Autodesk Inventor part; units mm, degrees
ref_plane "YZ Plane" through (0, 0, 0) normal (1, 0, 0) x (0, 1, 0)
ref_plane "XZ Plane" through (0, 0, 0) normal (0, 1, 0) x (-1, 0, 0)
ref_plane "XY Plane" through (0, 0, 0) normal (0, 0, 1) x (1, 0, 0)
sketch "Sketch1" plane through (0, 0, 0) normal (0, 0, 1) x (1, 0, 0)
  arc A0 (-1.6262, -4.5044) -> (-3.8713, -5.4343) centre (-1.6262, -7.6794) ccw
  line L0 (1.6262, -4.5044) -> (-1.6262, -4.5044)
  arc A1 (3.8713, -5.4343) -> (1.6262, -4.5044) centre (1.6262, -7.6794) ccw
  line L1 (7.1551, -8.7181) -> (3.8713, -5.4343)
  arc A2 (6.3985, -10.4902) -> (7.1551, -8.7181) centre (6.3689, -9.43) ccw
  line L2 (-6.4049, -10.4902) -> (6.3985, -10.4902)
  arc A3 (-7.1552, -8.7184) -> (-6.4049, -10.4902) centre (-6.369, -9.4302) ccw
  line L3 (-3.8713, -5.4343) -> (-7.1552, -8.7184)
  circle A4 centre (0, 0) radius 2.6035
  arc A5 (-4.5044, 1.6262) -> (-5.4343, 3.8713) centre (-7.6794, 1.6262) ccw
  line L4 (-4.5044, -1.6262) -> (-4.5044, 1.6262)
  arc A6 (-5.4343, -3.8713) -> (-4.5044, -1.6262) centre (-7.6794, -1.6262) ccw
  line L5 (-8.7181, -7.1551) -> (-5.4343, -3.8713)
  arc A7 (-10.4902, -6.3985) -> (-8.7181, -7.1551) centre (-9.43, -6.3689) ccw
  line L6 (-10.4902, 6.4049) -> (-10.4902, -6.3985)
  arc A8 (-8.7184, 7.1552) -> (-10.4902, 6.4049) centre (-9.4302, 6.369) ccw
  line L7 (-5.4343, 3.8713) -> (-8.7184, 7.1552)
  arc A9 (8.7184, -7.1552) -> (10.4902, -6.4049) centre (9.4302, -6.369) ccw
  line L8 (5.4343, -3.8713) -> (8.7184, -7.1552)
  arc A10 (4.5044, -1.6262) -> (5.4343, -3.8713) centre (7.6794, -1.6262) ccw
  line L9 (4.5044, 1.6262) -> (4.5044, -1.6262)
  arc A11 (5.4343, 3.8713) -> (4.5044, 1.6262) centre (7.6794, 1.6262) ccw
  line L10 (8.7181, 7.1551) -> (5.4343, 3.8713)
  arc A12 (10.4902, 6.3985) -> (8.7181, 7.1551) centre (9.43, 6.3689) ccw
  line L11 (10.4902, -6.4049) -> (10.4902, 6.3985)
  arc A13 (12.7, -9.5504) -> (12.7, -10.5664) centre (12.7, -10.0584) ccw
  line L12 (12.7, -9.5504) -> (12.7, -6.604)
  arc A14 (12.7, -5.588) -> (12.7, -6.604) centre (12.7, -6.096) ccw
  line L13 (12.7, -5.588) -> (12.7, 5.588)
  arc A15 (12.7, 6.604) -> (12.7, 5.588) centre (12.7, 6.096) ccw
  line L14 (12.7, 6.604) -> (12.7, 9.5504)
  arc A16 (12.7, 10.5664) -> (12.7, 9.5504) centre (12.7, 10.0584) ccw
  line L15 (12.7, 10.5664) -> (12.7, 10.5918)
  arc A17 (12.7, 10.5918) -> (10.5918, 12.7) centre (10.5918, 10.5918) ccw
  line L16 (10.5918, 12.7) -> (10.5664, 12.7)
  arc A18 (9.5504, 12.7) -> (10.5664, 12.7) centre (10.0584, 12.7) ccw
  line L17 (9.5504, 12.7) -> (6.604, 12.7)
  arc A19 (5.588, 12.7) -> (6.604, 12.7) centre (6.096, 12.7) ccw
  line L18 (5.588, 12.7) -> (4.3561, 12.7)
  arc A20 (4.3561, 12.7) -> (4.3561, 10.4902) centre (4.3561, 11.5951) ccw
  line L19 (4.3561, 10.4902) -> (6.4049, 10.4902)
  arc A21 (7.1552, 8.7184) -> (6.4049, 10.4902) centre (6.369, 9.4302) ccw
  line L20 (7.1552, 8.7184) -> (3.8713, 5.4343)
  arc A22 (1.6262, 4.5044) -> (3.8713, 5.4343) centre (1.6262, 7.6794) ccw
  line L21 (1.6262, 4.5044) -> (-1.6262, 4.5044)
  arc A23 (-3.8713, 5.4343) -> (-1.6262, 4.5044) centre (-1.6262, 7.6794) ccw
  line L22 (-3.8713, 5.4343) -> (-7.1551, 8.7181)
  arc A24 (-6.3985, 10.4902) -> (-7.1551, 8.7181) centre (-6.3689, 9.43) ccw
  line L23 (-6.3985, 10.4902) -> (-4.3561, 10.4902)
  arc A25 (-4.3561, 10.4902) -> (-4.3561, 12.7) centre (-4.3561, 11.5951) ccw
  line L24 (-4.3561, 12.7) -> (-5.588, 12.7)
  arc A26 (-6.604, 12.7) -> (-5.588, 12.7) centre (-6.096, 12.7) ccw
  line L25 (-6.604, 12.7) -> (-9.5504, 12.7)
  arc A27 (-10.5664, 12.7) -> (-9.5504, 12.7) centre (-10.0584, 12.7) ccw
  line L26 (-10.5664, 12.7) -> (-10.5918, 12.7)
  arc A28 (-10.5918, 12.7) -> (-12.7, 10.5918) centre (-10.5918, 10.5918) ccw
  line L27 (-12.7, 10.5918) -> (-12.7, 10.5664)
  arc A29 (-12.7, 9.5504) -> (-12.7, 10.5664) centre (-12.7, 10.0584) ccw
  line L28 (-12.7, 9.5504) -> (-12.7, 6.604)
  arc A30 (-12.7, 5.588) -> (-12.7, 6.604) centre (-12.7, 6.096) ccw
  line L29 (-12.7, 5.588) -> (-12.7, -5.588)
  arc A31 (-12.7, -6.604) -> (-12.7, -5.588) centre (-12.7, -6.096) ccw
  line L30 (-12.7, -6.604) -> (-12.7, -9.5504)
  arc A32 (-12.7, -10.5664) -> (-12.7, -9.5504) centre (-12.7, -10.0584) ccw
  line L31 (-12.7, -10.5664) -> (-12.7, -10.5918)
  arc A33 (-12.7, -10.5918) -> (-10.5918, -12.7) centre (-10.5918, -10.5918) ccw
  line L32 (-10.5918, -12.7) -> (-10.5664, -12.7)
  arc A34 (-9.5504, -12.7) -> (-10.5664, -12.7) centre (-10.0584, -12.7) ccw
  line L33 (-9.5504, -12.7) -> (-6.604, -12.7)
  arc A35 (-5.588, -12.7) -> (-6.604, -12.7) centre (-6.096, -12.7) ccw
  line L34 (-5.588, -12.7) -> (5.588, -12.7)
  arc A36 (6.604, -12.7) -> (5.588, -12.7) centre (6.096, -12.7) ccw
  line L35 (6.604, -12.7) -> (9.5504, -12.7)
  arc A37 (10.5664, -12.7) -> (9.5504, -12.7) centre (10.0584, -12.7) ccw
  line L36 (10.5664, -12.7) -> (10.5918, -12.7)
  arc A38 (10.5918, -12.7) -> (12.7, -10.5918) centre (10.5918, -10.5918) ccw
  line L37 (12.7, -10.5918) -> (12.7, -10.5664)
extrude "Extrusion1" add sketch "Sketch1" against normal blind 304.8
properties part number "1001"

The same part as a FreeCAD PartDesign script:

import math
import FreeCAD as App
import Part
import Sketcher
from FreeCAD import Vector
Q = App.Units.Quantity

doc = App.newDocument("Part")
params = doc.addObject("Spreadsheet::Sheet", "Params")
for row, (alias, value) in enumerate([
    ("sketch1_radius", "0.02 in"),
    ("sketch1_radius2", "0.02 in"),
    ("sketch1_radius3", "0.02 in"),
    ("sketch1_radius4", "0.02 in"),
    ("sketch1_radius5", "0.02 in"),
    ("pad1_length", "12 in"),
], start=1):
    params.set(f"A{row}", alias)
    params.set(f"B{row}", "=" + value)
    params.setAlias(f"B{row}", alias)

body = doc.addObject("PartDesign::Body", "Body")

# Sketch on XY plane
sketch1 = doc.addObject("Sketcher::SketchObject", "Sketch")
body.addObject(sketch1)
sketch1.AttachmentSupport = (doc.XY_Plane, [""])
sketch1.MapMode = "FlatFace"
sketch1.addGeometry([
    Part.ArcOfCircle(Part.Circle(Vector(12.7, -10.0584, 0), Vector(0, 0, 1), 0.508), math.radians(90), math.radians(270)),  # 0
    Part.LineSegment(Vector(12.7, -9.5504, 0), Vector(12.7, -6.604, 0)),  # 1
    Part.ArcOfCircle(Part.Circle(Vector(12.7, -6.096, 0), Vector(0, 0, 1), 0.508), math.radians(90), math.radians(270)),  # 2
    Part.LineSegment(Vector(12.7, -5.588, 0), Vector(12.7, 5.588, 0)),  # 3
    Part.ArcOfCircle(Part.Circle(Vector(12.7, 6.096, 0), Vector(0, 0, 1), 0.508), math.radians(90), math.radians(270)),  # 4
    Part.LineSegment(Vector(12.7, 6.604, 0), Vector(12.7, 9.5504, 0)),  # 5
    Part.ArcOfCircle(Part.Circle(Vector(12.7, 10.0584, 0), Vector(0, 0, 1), 0.508), math.radians(90), math.radians(270)),  # 6
    Part.LineSegment(Vector(12.7, 10.5664, 0), Vector(12.7, 10.5918, 0)),  # 7
    Part.ArcOfCircle(Part.Circle(Vector(10.5918, 10.5918, 0), Vector(0, 0, 1), 2.1082), math.radians(0), math.radians(90)),  # 8
    Part.LineSegment(Vector(10.5918, 12.7, 0), Vector(10.5664, 12.7, 0)),  # 9
    Part.ArcOfCircle(Part.Circle(Vector(10.0584, 12.7, 0), Vector(0, 0, 1), 0.508), math.radians(180), math.radians(360)),  # 10
    Part.LineSegment(Vector(9.5504, 12.7, 0), Vector(6.604, 12.7, 0)),  # 11
    Part.ArcOfCircle(Part.Circle(Vector(6.096, 12.7, 0), Vector(0, 0, 1), 0.508), math.radians(180), math.radians(360)),  # 12
    Part.LineSegment(Vector(5.588, 12.7, 0), Vector(4.3561, 12.7, 0)),  # 13
    Part.ArcOfCircle(Part.Circle(Vector(4.3561, 11.5951, 0), Vector(0, 0, 1), 1.1049), math.radians(90), math.radians(270)),  # 14
    Part.LineSegment(Vector(4.3561, 10.4902, 0), Vector(6.4049, 10.4902, 0)),  # 15
    Part.ArcOfCircle(Part.Circle(Vector(6.369, 9.4302, 0), Vector(0, 0, 1), 1.060552), math.radians(-42.156671), math.radians(88.060252)),  # 16
    Part.LineSegment(Vector(7.1552, 8.7184, 0), Vector(3.8713, 5.4343, 0)),  # 17
    Part.ArcOfCircle(Part.Circle(Vector(1.6262, 7.6794, 0), Vector(0, 0, 1), 3.175), math.radians(-90), math.radians(-45)),  # 18
    Part.LineSegment(Vector(1.6262, 4.5044, 0), Vector(-1.6262, 4.5044, 0)),  # 19
    Part.ArcOfCircle(Part.Circle(Vector(-1.6262, 7.6794, 0), Vector(0, 0, 1), 3.175051), math.radians(-135), math.radians(-90)),  # 20
    Part.LineSegment(Vector(-3.8713, 5.4343, 0), Vector(-7.1551, 8.7181, 0)),  # 21
    Part.ArcOfCircle(Part.Circle(Vector(-6.3689, 9.43, 0), Vector(0, 0, 1), 1.060613), math.radians(91.59924), math.radians(222.160676)),  # 22
    Part.LineSegment(Vector(-6.3985, 10.4902, 0), Vector(-4.3561, 10.4902, 0)),  # 23
    Part.ArcOfCircle(Part.Circle(Vector(-4.3561, 11.5951, 0), Vector(0, 0, 1), 1.1049), math.radians(-90), math.radians(90)),  # 24
    Part.LineSegment(Vector(-4.3561, 12.7, 0), Vector(-5.588, 12.7, 0)),  # 25
    Part.ArcOfCircle(Part.Circle(Vector(-6.096, 12.7, 0), Vector(0, 0, 1), 0.508), math.radians(180), math.radians(360)),  # 26
    Part.LineSegment(Vector(-6.604, 12.7, 0), Vector(-9.5504, 12.7, 0)),  # 27
    Part.ArcOfCircle(Part.Circle(Vector(-10.0584, 12.7, 0), Vector(0, 0, 1), 0.508), math.radians(180), math.radians(360)),  # 28
    Part.LineSegment(Vector(-10.5664, 12.7, 0), Vector(-10.5918, 12.7, 0)),  # 29
    Part.ArcOfCircle(Part.Circle(Vector(-10.5918, 10.5918, 0), Vector(0, 0, 1), 2.1082), math.radians(90), math.radians(180)),  # 30
    Part.LineSegment(Vector(-12.7, 10.5918, 0), Vector(-12.7, 10.5664, 0)),  # 31
    Part.ArcOfCircle(Part.Circle(Vector(-12.7, 10.0584, 0), Vector(0, 0, 1), 0.508), math.radians(-90), math.radians(90)),  # 32
    Part.LineSegment(Vector(-12.7, 9.5504, 0), Vector(-12.7, 6.604, 0)),  # 33
    Part.ArcOfCircle(Part.Circle(Vector(-12.7, 6.096, 0), Vector(0, 0, 1), 0.508), math.radians(-90), math.radians(90)),  # 34
    Part.LineSegment(Vector(-12.7, 5.588, 0), Vector(-12.7, -5.588, 0)),  # 35
    Part.ArcOfCircle(Part.Circle(Vector(-12.7, -6.096, 0), Vector(0, 0, 1), 0.508), math.radians(-90), math.radians(90)),  # 36
    Part.LineSegment(Vector(-12.7, -6.604, 0), Vector(-12.7, -9.5504, 0)),  # 37
    Part.ArcOfCircle(Part.Circle(Vector(-12.7, -10.0584, 0), Vector(0, 0, 1), 0.508), math.radians(-90), math.radians(90)),  # 38
    Part.LineSegment(Vector(-12.7, -10.5664, 0), Vector(-12.7, -10.5918, 0)),  # 39
    Part.ArcOfCircle(Part.Circle(Vector(-10.5918, -10.5918, 0), Vector(0, 0, 1), 2.1082), math.radians(180), math.radians(270)),  # 40
    Part.LineSegment(Vector(-10.5918, -12.7, 0), Vector(-10.5664, -12.7, 0)),  # 41
    Part.ArcOfCircle(Part.Circle(Vector(-10.0584, -12.7, 0), Vector(0, 0, 1), 0.508), math.radians(0), math.radians(180)),  # 42
    Part.LineSegment(Vector(-9.5504, -12.7, 0), Vector(-6.604, -12.7, 0)),  # 43
    Part.ArcOfCircle(Part.Circle(Vector(-6.096, -12.7, 0), Vector(0, 0, 1), 0.508), math.radians(0), math.radians(180)),  # 44
    Part.LineSegment(Vector(-5.588, -12.7, 0), Vector(5.588, -12.7, 0)),  # 45
    Part.ArcOfCircle(Part.Circle(Vector(6.096, -12.7, 0), Vector(0, 0, 1), 0.508), math.radians(0), math.radians(180)),  # 46
    Part.LineSegment(Vector(6.604, -12.7, 0), Vector(9.5504, -12.7, 0)),  # 47
    Part.ArcOfCircle(Part.Circle(Vector(10.0584, -12.7, 0), Vector(0, 0, 1), 0.508), math.radians(0), math.radians(180)),  # 48
    Part.LineSegment(Vector(10.5664, -12.7, 0), Vector(10.5918, -12.7, 0)),  # 49
    Part.ArcOfCircle(Part.Circle(Vector(10.5918, -10.5918, 0), Vector(0, 0, 1), 2.1082), math.radians(-90), math.radians(0)),  # 50
    Part.LineSegment(Vector(12.7, -10.5918, 0), Vector(12.7, -10.5664, 0)),  # 51
    Part.ArcOfCircle(Part.Circle(Vector(-1.6262, -7.6794, 0), Vector(0, 0, 1), 3.175), math.radians(90), math.radians(135)),  # 52
    Part.LineSegment(Vector(-1.6262, -4.5044, 0), Vector(1.6262, -4.5044, 0)),  # 53
    Part.ArcOfCircle(Part.Circle(Vector(1.6262, -7.6794, 0), Vector(0, 0, 1), 3.175051), math.radians(45), math.radians(90)),  # 54
    Part.LineSegment(Vector(3.8713, -5.4343, 0), Vector(7.1551, -8.7181, 0)),  # 55
    Part.ArcOfCircle(Part.Circle(Vector(6.3689, -9.43, 0), Vector(0, 0, 1), 1.060613), math.radians(-88.40076), math.radians(42.160676)),  # 56
    Part.LineSegment(Vector(6.3985, -10.4902, 0), Vector(-6.4049, -10.4902, 0)),  # 57
    Part.ArcOfCircle(Part.Circle(Vector(-6.369, -9.4302, 0), Vector(0, 0, 1), 1.060552), math.radians(137.843329), math.radians(268.060252)),  # 58
    Part.LineSegment(Vector(-7.1552, -8.7184, 0), Vector(-3.8713, -5.4343, 0)),  # 59
    Part.Circle(Vector(0, 0, 0), Vector(0, 0, 1), 2.6035),  # 60
    Part.ArcOfCircle(Part.Circle(Vector(9.4302, -6.369, 0), Vector(0, 0, 1), 1.060552), math.radians(-132.156671), math.radians(-1.939748)),  # 61
    Part.LineSegment(Vector(8.7184, -7.1552, 0), Vector(5.4343, -3.8713, 0)),  # 62
    Part.ArcOfCircle(Part.Circle(Vector(7.6794, -1.6262, 0), Vector(0, 0, 1), 3.175), math.radians(180), math.radians(225)),  # 63
    Part.LineSegment(Vector(4.5044, -1.6262, 0), Vector(4.5044, 1.6262, 0)),  # 64
    Part.ArcOfCircle(Part.Circle(Vector(7.6794, 1.6262, 0), Vector(0, 0, 1), 3.175051), math.radians(135), math.radians(180)),  # 65
    Part.LineSegment(Vector(5.4343, 3.8713, 0), Vector(8.7181, 7.1551, 0)),  # 66
    Part.ArcOfCircle(Part.Circle(Vector(9.43, 6.3689, 0), Vector(0, 0, 1), 1.060613), math.radians(1.59924), math.radians(132.160676)),  # 67
    Part.LineSegment(Vector(10.4902, 6.3985, 0), Vector(10.4902, -6.4049, 0)),  # 68
    Part.ArcOfCircle(Part.Circle(Vector(-7.6794, 1.6262, 0), Vector(0, 0, 1), 3.175), math.radians(0), math.radians(45)),  # 69
    Part.LineSegment(Vector(-4.5044, 1.6262, 0), Vector(-4.5044, -1.6262, 0)),  # 70
    Part.ArcOfCircle(Part.Circle(Vector(-7.6794, -1.6262, 0), Vector(0, 0, 1), 3.175051), math.radians(-45), math.radians(0)),  # 71
    Part.LineSegment(Vector(-5.4343, -3.8713, 0), Vector(-8.7181, -7.1551, 0)),  # 72
    Part.ArcOfCircle(Part.Circle(Vector(-9.43, -6.3689, 0), Vector(0, 0, 1), 1.060613), math.radians(-178.40076), math.radians(-47.839324)),  # 73
    Part.LineSegment(Vector(-10.4902, -6.3985, 0), Vector(-10.4902, 6.4049, 0)),  # 74
    Part.ArcOfCircle(Part.Circle(Vector(-9.4302, 6.369, 0), Vector(0, 0, 1), 1.060552), math.radians(47.843329), math.radians(178.060252)),  # 75
    Part.LineSegment(Vector(-8.7184, 7.1552, 0), Vector(-5.4343, 3.8713, 0)),  # 76
], False)
sketch1.addConstraint([
    Sketcher.Constraint("Coincident", 0, 1, 1, 1),
    Sketcher.Constraint("Coincident", 1, 2, 2, 2),
    Sketcher.Constraint("Coincident", 2, 1, 3, 1),
    Sketcher.Constraint("Coincident", 3, 2, 4, 2),
    Sketcher.Constraint("Coincident", 4, 1, 5, 1),
    Sketcher.Constraint("Coincident", 5, 2, 6, 2),
    Sketcher.Constraint("Coincident", 6, 1, 7, 1),
    Sketcher.Constraint("Coincident", 7, 2, 8, 1),
    Sketcher.Constraint("Coincident", 8, 2, 9, 1),
    Sketcher.Constraint("Coincident", 9, 2, 10, 2),
    Sketcher.Constraint("Coincident", 10, 1, 11, 1),
    Sketcher.Constraint("Coincident", 11, 2, 12, 2),
    Sketcher.Constraint("Coincident", 12, 1, 13, 1),
    Sketcher.Constraint("Coincident", 13, 2, 14, 1),
    Sketcher.Constraint("Coincident", 14, 2, 15, 1),
    Sketcher.Constraint("Coincident", 15, 2, 16, 2),
    Sketcher.Constraint("Coincident", 16, 1, 17, 1),
    Sketcher.Constraint("Coincident", 17, 2, 18, 2),
    Sketcher.Constraint("Coincident", 18, 1, 19, 1),
    Sketcher.Constraint("Coincident", 19, 2, 20, 2),
    Sketcher.Constraint("Coincident", 20, 1, 21, 1),
    Sketcher.Constraint("Coincident", 21, 2, 22, 2),
    Sketcher.Constraint("Coincident", 22, 1, 23, 1),
    Sketcher.Constraint("Coincident", 23, 2, 24, 1),
    Sketcher.Constraint("Coincident", 24, 2, 25, 1),
    Sketcher.Constraint("Coincident", 25, 2, 26, 2),
    Sketcher.Constraint("Coincident", 26, 1, 27, 1),
    Sketcher.Constraint("Coincident", 27, 2, 28, 2),
    Sketcher.Constraint("Coincident", 28, 1, 29, 1),
    Sketcher.Constraint("Coincident", 29, 2, 30, 1),
    Sketcher.Constraint("Coincident", 30, 2, 31, 1),
    Sketcher.Constraint("Coincident", 31, 2, 32, 2),
    Sketcher.Constraint("Coincident", 32, 1, 33, 1),
    Sketcher.Constraint("Coincident", 33, 2, 34, 2),
    Sketcher.Constraint("Coincident", 34, 1, 35, 1),
    Sketcher.Constraint("Coincident", 35, 2, 36, 2),
    Sketcher.Constraint("Coincident", 36, 1, 37, 1),
    Sketcher.Constraint("Coincident", 37, 2, 38, 2),
    Sketcher.Constraint("Coincident", 38, 1, 39, 1),
    Sketcher.Constraint("Coincident", 39, 2, 40, 1),
    Sketcher.Constraint("Coincident", 40, 2, 41, 1),
    Sketcher.Constraint("Coincident", 41, 2, 42, 2),
    Sketcher.Constraint("Coincident", 42, 1, 43, 1),
    Sketcher.Constraint("Coincident", 43, 2, 44, 2),
    Sketcher.Constraint("Coincident", 44, 1, 45, 1),
    Sketcher.Constraint("Coincident", 45, 2, 46, 2),
    Sketcher.Constraint("Coincident", 46, 1, 47, 1),
    Sketcher.Constraint("Coincident", 47, 2, 48, 2),
    Sketcher.Constraint("Coincident", 48, 1, 49, 1),
    Sketcher.Constraint("Coincident", 49, 2, 50, 1),
    Sketcher.Constraint("Coincident", 50, 2, 51, 1),
    Sketcher.Constraint("Coincident", 51, 2, 0, 2),
    Sketcher.Constraint("Coincident", 52, 1, 53, 1),
    Sketcher.Constraint("Coincident", 53, 2, 54, 2),
    Sketcher.Constraint("Coincident", 54, 1, 55, 1),
    Sketcher.Constraint("Coincident", 55, 2, 56, 2),
    Sketcher.Constraint("Coincident", 56, 1, 57, 1),
    Sketcher.Constraint("Coincident", 57, 2, 58, 2),
    Sketcher.Constraint("Coincident", 58, 1, 59, 1),
    Sketcher.Constraint("Coincident", 59, 2, 52, 2),
    Sketcher.Constraint("Coincident", 61, 1, 62, 1),
    Sketcher.Constraint("Coincident", 62, 2, 63, 2),
    Sketcher.Constraint("Coincident", 63, 1, 64, 1),
    Sketcher.Constraint("Coincident", 64, 2, 65, 2),
    Sketcher.Constraint("Coincident", 65, 1, 66, 1),
    Sketcher.Constraint("Coincident", 66, 2, 67, 2),
    Sketcher.Constraint("Coincident", 67, 1, 68, 1),
    Sketcher.Constraint("Coincident", 68, 2, 61, 2),
    Sketcher.Constraint("Coincident", 69, 1, 70, 1),
    Sketcher.Constraint("Coincident", 70, 2, 71, 2),
    Sketcher.Constraint("Coincident", 71, 1, 72, 1),
    Sketcher.Constraint("Coincident", 72, 2, 73, 2),
    Sketcher.Constraint("Coincident", 73, 1, 74, 1),
    Sketcher.Constraint("Coincident", 74, 2, 75, 2),
    Sketcher.Constraint("Coincident", 75, 1, 76, 1),
    Sketcher.Constraint("Coincident", 76, 2, 69, 2),
    Sketcher.Constraint("Vertical", 1),
    Sketcher.Constraint("Vertical", 3),
    Sketcher.Constraint("Vertical", 5),
    Sketcher.Constraint("Vertical", 7),
    Sketcher.Constraint("Horizontal", 9),
    Sketcher.Constraint("Horizontal", 11),
    Sketcher.Constraint("Horizontal", 13),
    Sketcher.Constraint("Horizontal", 15),
    Sketcher.Constraint("Horizontal", 19),
    Sketcher.Constraint("Horizontal", 23),
    Sketcher.Constraint("Horizontal", 25),
    Sketcher.Constraint("Horizontal", 27),
    Sketcher.Constraint("Horizontal", 29),
    Sketcher.Constraint("Vertical", 31),
    Sketcher.Constraint("Vertical", 33),
    Sketcher.Constraint("Vertical", 35),
    Sketcher.Constraint("Vertical", 37),
    Sketcher.Constraint("Vertical", 39),
    Sketcher.Constraint("Horizontal", 41),
    Sketcher.Constraint("Horizontal", 43),
    Sketcher.Constraint("Horizontal", 45),
    Sketcher.Constraint("Horizontal", 47),
    Sketcher.Constraint("Horizontal", 49),
    Sketcher.Constraint("Vertical", 51),
    Sketcher.Constraint("Horizontal", 53),
    Sketcher.Constraint("Horizontal", 57),
    Sketcher.Constraint("Vertical", 64),
    Sketcher.Constraint("Vertical", 68),
    Sketcher.Constraint("Vertical", 70),
    Sketcher.Constraint("Vertical", 74),
    Sketcher.Constraint("Coincident", 60, 3, -1, 1),
    Sketcher.Constraint("Radius", 0, Q("0.02 in")),
    Sketcher.Constraint("Radius", 2, Q("0.02 in")),
    Sketcher.Constraint("Radius", 4, Q("0.02 in")),
    Sketcher.Constraint("Radius", 6, Q("0.02 in")),
    Sketcher.Constraint("Radius", 10, Q("0.02 in")),
    Sketcher.Constraint("Radius", 12, Q("0.02 in")),
    Sketcher.Constraint("Radius", 26, Q("0.02 in")),
    Sketcher.Constraint("Radius", 28, Q("0.02 in")),
    Sketcher.Constraint("Radius", 32, Q("0.02 in")),
    Sketcher.Constraint("Radius", 34, Q("0.02 in")),
    Sketcher.Constraint("Radius", 36, Q("0.02 in")),
    Sketcher.Constraint("Radius", 38, Q("0.02 in")),
    Sketcher.Constraint("Radius", 42, Q("0.02 in")),
    Sketcher.Constraint("Radius", 44, Q("0.02 in")),
    Sketcher.Constraint("Radius", 46, Q("0.02 in")),
    Sketcher.Constraint("Radius", 48, Q("0.02 in")),
    Sketcher.Constraint("Diameter", 60, Q("0.205 in")),
    Sketcher.Constraint("Radius", 8, Q("0.083 in")),
    Sketcher.Constraint("Radius", 18, Q("0.125 in")),
    Sketcher.Constraint("Radius", 20, Q("0.125 in")),
    Sketcher.Constraint("Radius", 30, Q("0.083 in")),
    Sketcher.Constraint("Radius", 40, Q("0.083 in")),
    Sketcher.Constraint("Radius", 50, Q("0.083 in")),
    Sketcher.Constraint("Radius", 52, Q("0.125 in")),
    Sketcher.Constraint("Radius", 54, Q("0.125 in")),
    Sketcher.Constraint("Radius", 63, Q("0.125 in")),
    Sketcher.Constraint("Radius", 65, Q("0.125 in")),
    Sketcher.Constraint("Radius", 69, Q("0.125 in")),
    Sketcher.Constraint("Radius", 71, Q("0.125 in")),
    Sketcher.Constraint("DistanceX", 45, 1, 45, 2, Q("0.44 in")),
    Sketcher.Constraint("DistanceY", 3, 1, 3, 2, Q("0.44 in")),
    Sketcher.Constraint("DistanceY", 35, 2, 35, 1, Q("0.44 in")),
    Sketcher.Constraint("DistanceX", -1, 1, 0, 3, Q("0.5 in")),
    Sketcher.Constraint("DistanceX", -1, 1, 2, 3, Q("0.5 in")),
    Sketcher.Constraint("DistanceX", -1, 1, 4, 3, Q("0.5 in")),
    Sketcher.Constraint("DistanceX", -1, 1, 6, 3, Q("0.5 in")),
    Sketcher.Constraint("DistanceY", -1, 1, 10, 3, Q("0.5 in")),
    Sketcher.Constraint("DistanceY", -1, 1, 12, 3, Q("0.5 in")),
    Sketcher.Constraint("DistanceY", -1, 1, 26, 3, Q("0.5 in")),
    Sketcher.Constraint("DistanceY", -1, 1, 28, 3, Q("0.5 in")),
    Sketcher.Constraint("DistanceX", 32, 3, -1, 1, Q("0.5 in")),
    Sketcher.Constraint("DistanceX", 34, 3, -1, 1, Q("0.5 in")),
    Sketcher.Constraint("DistanceX", 36, 3, -1, 1, Q("0.5 in")),
    Sketcher.Constraint("DistanceX", 38, 3, -1, 1, Q("0.5 in")),
    Sketcher.Constraint("DistanceY", 42, 3, -1, 1, Q("0.5 in")),
    Sketcher.Constraint("DistanceY", 44, 3, -1, 1, Q("0.5 in")),
    Sketcher.Constraint("DistanceY", 46, 3, -1, 1, Q("0.5 in")),
    Sketcher.Constraint("DistanceY", 48, 3, -1, 1, Q("0.5 in")),
    Sketcher.Constraint("DistanceX", -1, 1, 0, 1, Q("0.5 in")),
    Sketcher.Constraint("DistanceX", -1, 1, 2, 1, Q("0.5 in")),
    Sketcher.Constraint("DistanceX", -1, 1, 4, 1, Q("0.5 in")),
    Sketcher.Constraint("DistanceX", -1, 1, 6, 1, Q("0.5 in")),
    Sketcher.Constraint("DistanceY", -1, 1, 8, 2, Q("0.5 in")),
    Sketcher.Constraint("DistanceY", -1, 1, 10, 1, Q("0.5 in")),
    Sketcher.Constraint("DistanceY", -1, 1, 12, 1, Q("0.5 in")),
    Sketcher.Constraint("DistanceY", -1, 1, 24, 2, Q("0.5 in")),
    Sketcher.Constraint("DistanceY", -1, 1, 26, 1, Q("0.5 in")),
    Sketcher.Constraint("DistanceY", -1, 1, 28, 1, Q("0.5 in")),
    Sketcher.Constraint("DistanceX", 30, 2, -1, 1, Q("0.5 in")),
    Sketcher.Constraint("DistanceX", 32, 1, -1, 1, Q("0.5 in")),
    Sketcher.Constraint("DistanceX", 34, 1, -1, 1, Q("0.5 in")),
    Sketcher.Constraint("DistanceX", 36, 1, -1, 1, Q("0.5 in")),
    Sketcher.Constraint("DistanceX", 38, 1, -1, 1, Q("0.5 in")),
    Sketcher.Constraint("DistanceY", 40, 2, -1, 1, Q("0.5 in")),
    Sketcher.Constraint("DistanceY", 42, 1, -1, 1, Q("0.5 in")),
    Sketcher.Constraint("DistanceY", 44, 1, -1, 1, Q("0.5 in")),
    Sketcher.Constraint("DistanceY", 46, 1, -1, 1, Q("0.5 in")),
    Sketcher.Constraint("DistanceY", 48, 1, -1, 1, Q("0.5 in")),
    Sketcher.Constraint("DistanceX", -1, 1, 50, 2, Q("0.5 in")),
    Sketcher.Constraint("Radius", 14, Q("0.0435 in")),
    Sketcher.Constraint("Radius", 24, Q("0.0435 in")),
    Sketcher.Constraint("DistanceX", 9, 2, 9, 1, Q("0.001 in")),
    Sketcher.Constraint("DistanceX", 11, 2, 11, 1, Q("0.116 in")),
    Sketcher.Constraint("DistanceX", 27, 2, 27, 1, Q("0.116 in")),
    Sketcher.Constraint("DistanceX", 29, 2, 29, 1, Q("0.001 in")),
    Sketcher.Constraint("DistanceX", 41, 1, 41, 2, Q("0.001 in")),
    Sketcher.Constraint("DistanceX", 43, 1, 43, 2, Q("0.116 in")),
    Sketcher.Constraint("DistanceX", 47, 1, 47, 2, Q("0.116 in")),
    Sketcher.Constraint("DistanceX", 49, 1, 49, 2, Q("0.001 in")),
    Sketcher.Constraint("DistanceY", 1, 1, 1, 2, Q("0.116 in")),
    Sketcher.Constraint("DistanceY", 5, 1, 5, 2, Q("0.116 in")),
    Sketcher.Constraint("DistanceY", 7, 1, 7, 2, Q("0.001 in")),
    Sketcher.Constraint("DistanceY", 31, 2, 31, 1, Q("0.001 in")),
    Sketcher.Constraint("DistanceY", 33, 2, 33, 1, Q("0.116 in")),
    Sketcher.Constraint("DistanceY", 37, 2, 37, 1, Q("0.116 in")),
    Sketcher.Constraint("DistanceY", 39, 2, 39, 1, Q("0.001 in")),
    Sketcher.Constraint("DistanceY", 51, 1, 51, 2, Q("0.001 in")),
    Sketcher.Constraint("DistanceY", 2, 3, -1, 1, Q("0.24 in")),
    Sketcher.Constraint("DistanceX", -1, 1, 12, 3, Q("0.24 in")),
    Sketcher.Constraint("DistanceX", 26, 3, -1, 1, Q("0.24 in")),
    Sketcher.Constraint("DistanceY", -1, 1, 34, 3, Q("0.24 in")),
    Sketcher.Constraint("DistanceX", 44, 3, -1, 1, Q("0.24 in")),
    Sketcher.Constraint("Radius", 16, 1.0606),
    Sketcher.Constraint("Radius", 22, 1.0606),
    Sketcher.Constraint("Radius", 56, 1.0606),
    Sketcher.Constraint("Radius", 58, 1.0606),
    Sketcher.Constraint("Radius", 61, 1.0606),
    Sketcher.Constraint("Radius", 67, 1.0606),
    Sketcher.Constraint("Radius", 73, 1.0606),
    Sketcher.Constraint("Radius", 75, 1.0606),
    Sketcher.Constraint("DistanceX", 13, 2, 13, 1, Q("0.0485 in")),
    Sketcher.Constraint("DistanceX", 23, 1, 23, 2, Q("0.0804 in")),
    Sketcher.Constraint("DistanceX", 25, 2, 25, 1, Q("0.0485 in")),
    Sketcher.Constraint("DistanceY", 56, 1, -1, 1, Q("0.413 in")),
    Sketcher.Constraint("DistanceX", -1, 1, 67, 1, Q("0.413 in")),
    Sketcher.Constraint("DistanceX", 73, 1, -1, 1, Q("0.413 in")),
    Sketcher.Constraint("DistanceX", 15, 1, 15, 2, 2.0488),
    Sketcher.Constraint("DistanceX", 19, 2, 19, 1, 3.2524),
    Sketcher.Constraint("DistanceX", 53, 1, 53, 2, 3.2524),
    Sketcher.Constraint("DistanceX", 57, 2, 57, 1, 12.8034),
    Sketcher.Constraint("DistanceY", 64, 1, 64, 2, 3.2524),
    Sketcher.Constraint("DistanceY", 68, 2, 68, 1, 12.8034),
    Sketcher.Constraint("DistanceY", 70, 2, 70, 1, 3.2524),
    Sketcher.Constraint("DistanceY", 74, 1, 74, 2, 12.8034),
    Sketcher.Constraint("DistanceX", -1, 1, 14, 3, Q("0.1715 in")),
    Sketcher.Constraint("DistanceX", 24, 3, -1, 1, Q("0.1715 in")),
    Sketcher.Constraint("DistanceX", -1, 1, 14, 2, Q("0.1715 in")),
    Sketcher.Constraint("DistanceX", -1, 1, 16, 1, Q("0.2817 in")),
    Sketcher.Constraint("DistanceX", 21, 2, -1, 1, Q("0.2817 in")),
    Sketcher.Constraint("DistanceX", 22, 1, -1, 1, Q("0.2519 in")),
    Sketcher.Constraint("DistanceX", -1, 1, 55, 2, Q("0.2817 in")),
    Sketcher.Constraint("DistanceX", -1, 1, 56, 1, Q("0.2519 in")),
    Sketcher.Constraint("DistanceX", 58, 1, -1, 1, Q("0.2817 in")),
    Sketcher.Constraint("DistanceY", 61, 1, -1, 1, Q("0.2817 in")),
    Sketcher.Constraint("DistanceY", -1, 1, 66, 2, Q("0.2817 in")),
    Sketcher.Constraint("DistanceY", -1, 1, 67, 1, Q("0.2519 in")),
    Sketcher.Constraint("DistanceY", 72, 2, -1, 1, Q("0.2817 in")),
    Sketcher.Constraint("DistanceY", 73, 1, -1, 1, Q("0.2519 in")),
    Sketcher.Constraint("DistanceY", -1, 1, 75, 1, Q("0.2817 in")),
    Sketcher.Constraint("Distance", 17, 4.6443),
    Sketcher.Constraint("Distance", 21, 4.644),
    Sketcher.Constraint("Distance", 55, 4.644),
    Sketcher.Constraint("Distance", 59, 4.6443),
    Sketcher.Constraint("Distance", 62, 4.6443),
    Sketcher.Constraint("Distance", 66, 4.644),
    Sketcher.Constraint("Distance", 72, 4.644),
    Sketcher.Constraint("Distance", 76, 4.6443),
    Sketcher.Constraint("DistanceX", -1, 1, 16, 3, 6.369),
    Sketcher.Constraint("DistanceX", -1, 1, 18, 3, 1.6262),
    Sketcher.Constraint("DistanceY", -1, 1, 18, 3, 7.6794),
    Sketcher.Constraint("DistanceX", 20, 3, -1, 1, 1.6262),
    Sketcher.Constraint("DistanceX", 22, 3, -1, 1, 6.369),
    Sketcher.Constraint("DistanceX", 52, 3, -1, 1, 1.6262),
    Sketcher.Constraint("DistanceY", 52, 3, -1, 1, 7.6794),
    Sketcher.Constraint("DistanceX", -1, 1, 54, 3, 1.6262),
    Sketcher.Constraint("DistanceX", -1, 1, 56, 3, 6.369),
    Sketcher.Constraint("DistanceX", 58, 3, -1, 1, 6.369),
    Sketcher.Constraint("DistanceX", -1, 1, 61, 3, 9.4302),
    Sketcher.Constraint("DistanceX", -1, 1, 63, 3, 7.6794),
    Sketcher.Constraint("DistanceY", 63, 3, -1, 1, 1.6262),
    Sketcher.Constraint("DistanceY", -1, 1, 65, 3, 1.6262),
    Sketcher.Constraint("DistanceX", -1, 1, 67, 3, 9.43),
    Sketcher.Constraint("DistanceX", 69, 3, -1, 1, 7.6794),
    Sketcher.Constraint("DistanceY", -1, 1, 69, 3, 1.6262),
    Sketcher.Constraint("DistanceY", 71, 3, -1, 1, 1.6262),
    Sketcher.Constraint("DistanceX", 73, 3, -1, 1, 9.43),
    Sketcher.Constraint("DistanceX", 75, 3, -1, 1, 9.4302),
    Sketcher.Constraint("DistanceX", -1, 1, 18, 1, 1.6262),
    Sketcher.Constraint("DistanceX", 52, 1, -1, 1, 1.6262),
    Sketcher.Constraint("DistanceY", 63, 1, -1, 1, 1.6262),
    Sketcher.Constraint("DistanceY", -1, 1, 69, 1, 1.6262),
])
sketch1.setExpression("Constraints[107]", "Params.sketch1_radius")
sketch1.setExpression("Constraints[108]", "Params.sketch1_radius2")
sketch1.setExpression("Constraints[109]", "Params.sketch1_radius3")
sketch1.setExpression("Constraints[110]", "Params.sketch1_radius4")
sketch1.setExpression("Constraints[111]", "Params.sketch1_radius5")
pad1 = doc.addObject("PartDesign::Pad", "Pad")
body.addObject(pad1)
pad1.Profile = sketch1
pad1.setExpression("Length", "Params.pad1_length")
pad1.Reversed = True

doc.recompute()
